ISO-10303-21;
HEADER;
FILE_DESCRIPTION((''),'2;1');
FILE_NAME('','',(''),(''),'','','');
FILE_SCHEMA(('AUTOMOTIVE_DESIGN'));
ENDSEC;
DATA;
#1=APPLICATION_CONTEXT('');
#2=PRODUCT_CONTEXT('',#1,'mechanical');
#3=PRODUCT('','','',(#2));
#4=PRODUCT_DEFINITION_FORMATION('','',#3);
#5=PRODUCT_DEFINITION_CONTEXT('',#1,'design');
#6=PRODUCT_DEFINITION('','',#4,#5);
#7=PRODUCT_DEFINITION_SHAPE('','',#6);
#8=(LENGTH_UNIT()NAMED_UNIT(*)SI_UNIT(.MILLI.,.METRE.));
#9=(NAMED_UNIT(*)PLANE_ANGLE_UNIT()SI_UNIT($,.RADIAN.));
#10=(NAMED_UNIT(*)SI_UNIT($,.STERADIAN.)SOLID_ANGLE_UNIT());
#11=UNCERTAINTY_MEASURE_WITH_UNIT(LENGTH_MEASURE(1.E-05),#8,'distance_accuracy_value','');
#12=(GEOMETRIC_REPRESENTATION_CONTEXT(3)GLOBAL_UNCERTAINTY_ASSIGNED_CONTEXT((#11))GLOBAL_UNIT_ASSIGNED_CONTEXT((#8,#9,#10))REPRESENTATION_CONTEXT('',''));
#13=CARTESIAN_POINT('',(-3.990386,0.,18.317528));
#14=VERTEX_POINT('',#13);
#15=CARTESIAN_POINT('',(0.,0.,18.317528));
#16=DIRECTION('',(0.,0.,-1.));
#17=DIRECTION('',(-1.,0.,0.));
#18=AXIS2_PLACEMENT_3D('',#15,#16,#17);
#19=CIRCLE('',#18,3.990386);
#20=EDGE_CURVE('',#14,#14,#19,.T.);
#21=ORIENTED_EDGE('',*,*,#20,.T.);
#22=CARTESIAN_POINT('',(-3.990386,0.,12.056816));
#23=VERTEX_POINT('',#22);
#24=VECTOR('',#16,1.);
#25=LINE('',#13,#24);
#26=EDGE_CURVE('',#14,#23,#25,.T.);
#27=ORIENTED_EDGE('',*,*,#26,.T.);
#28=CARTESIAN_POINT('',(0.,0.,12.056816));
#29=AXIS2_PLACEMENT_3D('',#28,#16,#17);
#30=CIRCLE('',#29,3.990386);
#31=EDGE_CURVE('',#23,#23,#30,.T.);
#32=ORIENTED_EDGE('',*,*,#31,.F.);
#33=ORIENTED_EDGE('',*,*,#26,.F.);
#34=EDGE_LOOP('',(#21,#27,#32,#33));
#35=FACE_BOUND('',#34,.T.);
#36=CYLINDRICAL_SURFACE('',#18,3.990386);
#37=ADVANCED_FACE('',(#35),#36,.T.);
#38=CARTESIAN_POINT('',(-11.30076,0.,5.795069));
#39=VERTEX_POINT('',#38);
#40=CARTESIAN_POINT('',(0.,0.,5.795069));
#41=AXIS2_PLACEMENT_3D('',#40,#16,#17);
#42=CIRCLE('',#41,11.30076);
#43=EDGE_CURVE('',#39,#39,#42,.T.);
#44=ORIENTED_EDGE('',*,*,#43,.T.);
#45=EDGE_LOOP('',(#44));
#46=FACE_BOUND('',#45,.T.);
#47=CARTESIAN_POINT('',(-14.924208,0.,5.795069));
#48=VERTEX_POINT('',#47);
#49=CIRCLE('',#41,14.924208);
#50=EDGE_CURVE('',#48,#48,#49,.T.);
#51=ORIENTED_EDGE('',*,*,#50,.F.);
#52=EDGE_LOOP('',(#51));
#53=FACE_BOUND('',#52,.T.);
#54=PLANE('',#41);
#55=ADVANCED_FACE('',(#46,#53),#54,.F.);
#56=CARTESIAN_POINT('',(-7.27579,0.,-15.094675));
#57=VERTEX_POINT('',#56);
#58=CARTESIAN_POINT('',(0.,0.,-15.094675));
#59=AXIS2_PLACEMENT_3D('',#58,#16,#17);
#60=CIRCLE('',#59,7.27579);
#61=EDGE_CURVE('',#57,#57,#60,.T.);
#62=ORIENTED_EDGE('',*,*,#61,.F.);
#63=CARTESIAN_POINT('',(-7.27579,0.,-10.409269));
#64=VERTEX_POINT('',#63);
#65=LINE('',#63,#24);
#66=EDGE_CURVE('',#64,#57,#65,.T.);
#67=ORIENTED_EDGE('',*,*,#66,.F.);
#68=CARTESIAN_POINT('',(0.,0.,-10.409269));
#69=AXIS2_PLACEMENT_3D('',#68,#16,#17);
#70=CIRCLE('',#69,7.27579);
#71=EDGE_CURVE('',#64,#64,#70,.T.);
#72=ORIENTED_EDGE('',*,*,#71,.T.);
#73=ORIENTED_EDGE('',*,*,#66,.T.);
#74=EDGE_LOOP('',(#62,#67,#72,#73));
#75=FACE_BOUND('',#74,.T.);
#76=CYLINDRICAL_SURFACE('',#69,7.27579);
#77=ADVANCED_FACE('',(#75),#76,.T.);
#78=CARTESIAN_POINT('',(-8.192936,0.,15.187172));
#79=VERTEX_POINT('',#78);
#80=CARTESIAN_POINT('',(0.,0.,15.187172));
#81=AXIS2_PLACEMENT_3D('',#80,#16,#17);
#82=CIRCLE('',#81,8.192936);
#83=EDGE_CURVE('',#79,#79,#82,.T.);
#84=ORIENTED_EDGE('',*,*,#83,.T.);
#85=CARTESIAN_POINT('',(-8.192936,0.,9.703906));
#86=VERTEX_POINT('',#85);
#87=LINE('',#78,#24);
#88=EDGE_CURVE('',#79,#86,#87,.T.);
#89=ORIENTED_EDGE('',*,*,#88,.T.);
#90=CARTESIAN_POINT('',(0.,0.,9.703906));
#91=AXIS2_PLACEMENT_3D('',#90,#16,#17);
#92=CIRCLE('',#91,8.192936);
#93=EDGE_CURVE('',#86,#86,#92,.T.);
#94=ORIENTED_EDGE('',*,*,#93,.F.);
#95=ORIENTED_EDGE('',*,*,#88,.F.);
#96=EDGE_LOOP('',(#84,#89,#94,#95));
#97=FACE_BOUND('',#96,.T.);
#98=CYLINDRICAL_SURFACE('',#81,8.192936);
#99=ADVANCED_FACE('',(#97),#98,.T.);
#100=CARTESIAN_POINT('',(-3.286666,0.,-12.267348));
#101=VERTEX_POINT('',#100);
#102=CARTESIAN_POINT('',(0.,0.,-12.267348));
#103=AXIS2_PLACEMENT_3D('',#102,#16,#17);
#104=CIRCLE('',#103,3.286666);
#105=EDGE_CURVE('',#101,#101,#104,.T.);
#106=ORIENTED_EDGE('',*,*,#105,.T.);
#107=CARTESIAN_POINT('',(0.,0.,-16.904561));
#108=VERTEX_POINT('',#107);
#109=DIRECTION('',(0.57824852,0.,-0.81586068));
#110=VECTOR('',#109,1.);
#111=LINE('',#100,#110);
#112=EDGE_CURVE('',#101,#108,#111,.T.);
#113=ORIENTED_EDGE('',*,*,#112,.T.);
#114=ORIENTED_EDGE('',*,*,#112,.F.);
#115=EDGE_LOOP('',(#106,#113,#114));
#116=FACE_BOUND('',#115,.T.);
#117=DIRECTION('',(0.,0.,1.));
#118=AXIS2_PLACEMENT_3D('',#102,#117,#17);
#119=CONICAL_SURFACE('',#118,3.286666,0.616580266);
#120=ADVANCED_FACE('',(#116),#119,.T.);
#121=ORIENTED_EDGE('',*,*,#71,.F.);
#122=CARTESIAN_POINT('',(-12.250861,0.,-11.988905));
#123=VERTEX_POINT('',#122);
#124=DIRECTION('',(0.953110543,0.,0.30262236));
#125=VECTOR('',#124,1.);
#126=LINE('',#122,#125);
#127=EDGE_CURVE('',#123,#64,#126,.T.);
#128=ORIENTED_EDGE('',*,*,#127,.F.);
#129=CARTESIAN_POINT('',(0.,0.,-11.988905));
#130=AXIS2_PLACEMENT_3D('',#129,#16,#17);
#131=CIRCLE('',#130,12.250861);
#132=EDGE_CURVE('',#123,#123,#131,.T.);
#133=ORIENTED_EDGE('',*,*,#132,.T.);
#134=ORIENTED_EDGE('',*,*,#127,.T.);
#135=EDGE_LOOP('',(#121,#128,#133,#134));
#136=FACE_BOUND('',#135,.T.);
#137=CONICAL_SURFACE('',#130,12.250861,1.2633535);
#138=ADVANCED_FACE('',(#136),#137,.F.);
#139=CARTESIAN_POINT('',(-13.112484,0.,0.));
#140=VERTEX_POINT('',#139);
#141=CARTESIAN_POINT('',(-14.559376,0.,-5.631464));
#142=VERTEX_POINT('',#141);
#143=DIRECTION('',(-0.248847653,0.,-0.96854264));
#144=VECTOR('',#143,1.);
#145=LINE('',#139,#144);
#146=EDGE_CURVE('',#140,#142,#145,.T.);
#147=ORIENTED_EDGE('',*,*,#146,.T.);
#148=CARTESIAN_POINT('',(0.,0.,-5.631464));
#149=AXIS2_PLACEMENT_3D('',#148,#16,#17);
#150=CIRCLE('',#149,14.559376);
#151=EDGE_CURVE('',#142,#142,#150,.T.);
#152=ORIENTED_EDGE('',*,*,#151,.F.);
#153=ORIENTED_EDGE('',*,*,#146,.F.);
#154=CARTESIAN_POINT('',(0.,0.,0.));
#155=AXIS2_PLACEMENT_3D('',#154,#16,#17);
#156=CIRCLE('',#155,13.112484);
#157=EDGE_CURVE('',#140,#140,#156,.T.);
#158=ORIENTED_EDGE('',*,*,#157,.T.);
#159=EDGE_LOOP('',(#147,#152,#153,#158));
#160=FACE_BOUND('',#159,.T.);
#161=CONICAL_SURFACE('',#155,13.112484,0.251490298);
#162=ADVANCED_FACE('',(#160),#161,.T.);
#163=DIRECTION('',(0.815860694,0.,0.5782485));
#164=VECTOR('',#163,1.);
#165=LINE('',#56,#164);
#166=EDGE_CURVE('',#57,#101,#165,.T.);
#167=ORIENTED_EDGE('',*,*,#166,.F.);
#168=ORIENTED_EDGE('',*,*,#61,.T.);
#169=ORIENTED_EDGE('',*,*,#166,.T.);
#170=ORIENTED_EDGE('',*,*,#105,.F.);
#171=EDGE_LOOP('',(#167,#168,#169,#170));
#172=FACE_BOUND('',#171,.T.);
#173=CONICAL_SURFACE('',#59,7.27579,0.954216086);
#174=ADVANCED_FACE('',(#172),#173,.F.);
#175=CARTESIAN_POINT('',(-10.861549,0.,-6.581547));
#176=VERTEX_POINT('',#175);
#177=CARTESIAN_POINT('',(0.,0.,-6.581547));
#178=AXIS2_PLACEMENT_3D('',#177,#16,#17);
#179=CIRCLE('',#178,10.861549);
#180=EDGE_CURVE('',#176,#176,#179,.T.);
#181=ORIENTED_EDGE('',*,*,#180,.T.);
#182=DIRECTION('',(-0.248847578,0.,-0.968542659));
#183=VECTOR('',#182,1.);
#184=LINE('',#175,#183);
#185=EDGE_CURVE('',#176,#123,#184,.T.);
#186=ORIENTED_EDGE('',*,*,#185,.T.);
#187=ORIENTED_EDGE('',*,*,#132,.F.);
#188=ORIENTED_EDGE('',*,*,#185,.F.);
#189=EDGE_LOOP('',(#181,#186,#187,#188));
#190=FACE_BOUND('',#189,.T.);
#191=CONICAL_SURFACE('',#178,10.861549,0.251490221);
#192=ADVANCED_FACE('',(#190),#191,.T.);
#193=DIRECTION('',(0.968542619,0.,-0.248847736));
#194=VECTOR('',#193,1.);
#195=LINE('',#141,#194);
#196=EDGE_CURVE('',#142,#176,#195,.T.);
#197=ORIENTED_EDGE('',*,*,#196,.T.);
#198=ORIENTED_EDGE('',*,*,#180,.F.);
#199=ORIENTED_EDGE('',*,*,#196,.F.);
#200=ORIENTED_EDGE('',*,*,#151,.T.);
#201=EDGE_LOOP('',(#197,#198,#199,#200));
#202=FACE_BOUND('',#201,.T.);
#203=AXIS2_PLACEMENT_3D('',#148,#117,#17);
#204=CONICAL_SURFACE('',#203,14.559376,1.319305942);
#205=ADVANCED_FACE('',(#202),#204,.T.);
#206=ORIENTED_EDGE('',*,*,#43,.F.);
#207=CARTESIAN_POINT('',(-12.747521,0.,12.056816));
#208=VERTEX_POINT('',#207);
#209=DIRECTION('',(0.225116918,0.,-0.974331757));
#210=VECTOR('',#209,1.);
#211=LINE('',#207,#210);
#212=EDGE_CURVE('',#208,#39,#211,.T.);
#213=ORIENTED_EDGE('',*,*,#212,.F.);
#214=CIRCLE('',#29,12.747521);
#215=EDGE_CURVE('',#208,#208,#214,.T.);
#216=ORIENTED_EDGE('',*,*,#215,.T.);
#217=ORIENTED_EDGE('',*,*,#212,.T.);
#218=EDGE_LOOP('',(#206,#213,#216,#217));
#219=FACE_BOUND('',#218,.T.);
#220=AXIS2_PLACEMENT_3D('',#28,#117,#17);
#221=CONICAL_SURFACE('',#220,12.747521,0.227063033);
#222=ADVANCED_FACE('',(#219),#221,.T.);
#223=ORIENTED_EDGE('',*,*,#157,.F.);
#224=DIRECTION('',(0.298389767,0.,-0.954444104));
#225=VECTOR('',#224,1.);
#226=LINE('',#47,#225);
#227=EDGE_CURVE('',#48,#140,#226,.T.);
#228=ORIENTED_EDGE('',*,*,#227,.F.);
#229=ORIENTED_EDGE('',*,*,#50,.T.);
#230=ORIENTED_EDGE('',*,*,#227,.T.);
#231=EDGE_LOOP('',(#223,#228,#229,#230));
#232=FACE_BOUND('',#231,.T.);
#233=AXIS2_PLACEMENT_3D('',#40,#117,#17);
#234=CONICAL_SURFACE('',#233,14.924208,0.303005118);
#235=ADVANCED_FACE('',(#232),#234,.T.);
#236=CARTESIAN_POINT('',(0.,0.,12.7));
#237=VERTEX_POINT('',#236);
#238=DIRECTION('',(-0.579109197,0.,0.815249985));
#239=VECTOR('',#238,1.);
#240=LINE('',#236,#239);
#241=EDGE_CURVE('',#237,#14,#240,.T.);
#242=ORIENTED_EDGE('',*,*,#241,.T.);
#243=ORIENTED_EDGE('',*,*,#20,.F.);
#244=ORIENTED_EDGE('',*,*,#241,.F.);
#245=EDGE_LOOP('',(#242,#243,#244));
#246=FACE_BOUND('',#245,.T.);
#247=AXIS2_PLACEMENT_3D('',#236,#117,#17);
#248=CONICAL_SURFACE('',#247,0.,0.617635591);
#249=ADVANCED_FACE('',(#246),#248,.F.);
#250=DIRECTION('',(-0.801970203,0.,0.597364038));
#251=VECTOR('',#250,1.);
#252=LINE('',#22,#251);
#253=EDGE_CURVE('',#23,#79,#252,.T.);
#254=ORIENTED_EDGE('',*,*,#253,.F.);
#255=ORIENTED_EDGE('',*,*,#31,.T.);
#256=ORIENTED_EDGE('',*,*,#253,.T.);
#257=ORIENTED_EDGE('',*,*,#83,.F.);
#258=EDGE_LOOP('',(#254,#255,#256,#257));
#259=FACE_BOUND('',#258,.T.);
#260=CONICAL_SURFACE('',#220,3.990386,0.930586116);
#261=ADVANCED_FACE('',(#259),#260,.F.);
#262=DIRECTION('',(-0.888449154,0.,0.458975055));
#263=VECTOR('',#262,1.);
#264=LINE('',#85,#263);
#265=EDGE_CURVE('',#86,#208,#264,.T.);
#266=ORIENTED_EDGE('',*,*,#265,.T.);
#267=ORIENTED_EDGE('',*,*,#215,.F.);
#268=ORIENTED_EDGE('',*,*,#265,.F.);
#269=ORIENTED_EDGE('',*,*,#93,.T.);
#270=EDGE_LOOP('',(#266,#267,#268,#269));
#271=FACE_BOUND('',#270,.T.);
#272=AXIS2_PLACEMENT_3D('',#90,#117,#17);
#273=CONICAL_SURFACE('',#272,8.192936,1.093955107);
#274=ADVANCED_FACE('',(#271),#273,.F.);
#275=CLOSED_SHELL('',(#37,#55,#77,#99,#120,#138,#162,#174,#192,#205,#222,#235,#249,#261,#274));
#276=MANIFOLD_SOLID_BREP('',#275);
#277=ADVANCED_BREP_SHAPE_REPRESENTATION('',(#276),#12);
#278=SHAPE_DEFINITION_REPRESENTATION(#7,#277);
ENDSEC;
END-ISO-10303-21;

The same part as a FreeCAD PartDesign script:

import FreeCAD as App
import Part
import Sketcher


def add_polygon(sketch, points):
    """Adds a closed chain of lines whose ends are joined by coincident constraints."""
    first, n = sketch.GeometryCount, len(points)
    for a, b in zip(points, points[1:] + points[:1]):
        sketch.addGeometry(Part.LineSegment(App.Vector(*a, 0), App.Vector(*b, 0)), False)
    for i in range(n):
        sketch.addConstraint(Sketcher.Constraint("Coincident", first + i, 2, first + (i + 1) % n, 1))

doc = App.newDocument("Part")
body = doc.addObject("PartDesign::Body", "Body")

# Sketch on XZ plane
sketch1 = body.newObject("Sketcher::SketchObject", "Sketch")
sketch1.AttachmentSupport = (doc.getObject("XZ_Plane"), [""])
sketch1.MapMode = "FlatFace"
add_polygon(sketch1, [(0, -16.9), (0, 12.7), (-4, 18.3), (-4, 12.1), (-8.2, 15.2), (-8.2, 9.7), (-12.7, 12.1), (-11.3, 5.8), (-14.9, 5.8), (-13.1, 0), (-14.6, -5.6), (-10.9, -6.6), (-12.3, -12), (-7.3, -10.4), (-7.3, -15.1), (-3.3, -12.3)])  # lines 0-15
sketch1.addConstraint(Sketcher.Constraint("Vertical", 0))
sketch1.addConstraint(Sketcher.Constraint("Vertical", 2))
sketch1.addConstraint(Sketcher.Constraint("Vertical", 4))
sketch1.addConstraint(Sketcher.Constraint("Horizontal", 7))
sketch1.addConstraint(Sketcher.Constraint("Vertical", 13))
sketch1.addConstraint(Sketcher.Constraint("PointOnObject", 0, 2, -2))
sketch1.addConstraint(Sketcher.Constraint("PointOnObject", 8, 2, -1))
sketch1.addConstraint(Sketcher.Constraint("Perpendicular", 9, 10))
sketch1.addConstraint(Sketcher.Constraint("Perpendicular", 10, 11))
sketch1.addConstraint(Sketcher.Constraint("Perpendicular", 14, 15))
sketch1.addConstraint(Sketcher.Constraint("Horizontal", 2, 2, 5, 2))
sketch1.addConstraint(Sketcher.Constraint("DistanceY", -1, 1, 0, 2, 12.7))
sketch1.addConstraint(Sketcher.Constraint("DistanceY", 0, 1, 0, 2, 29.604561))
sketch1.addConstraint(Sketcher.Constraint("DistanceY", 2, 2, 2, 1, 6.260712))
sketch1.addConstraint(Sketcher.Constraint("DistanceX", 8, 2, 2, 2, 9.122098))
sketch1.addConstraint(Sketcher.Constraint("DistanceX", 11, 2, 6, 2, 0.950101))
sketch1.addConstraint(Sketcher.Constraint("DistanceY", 14, 2, 10, 2, 5.685801))
sketch1.addConstraint(Sketcher.Constraint("Distance", 1, 6.890559))
sketch1.addConstraint(Sketcher.Constraint("Distance", 3, 5.240282))
sketch1.addConstraint(Sketcher.Constraint("Distance", 6, 6.426709))
sketch1.addConstraint(Sketcher.Constraint("Distance", 8, 6.071669))
sketch1.addConstraint(Sketcher.Constraint("Distance", 9, 5.814369))
sketch1.addConstraint(Sketcher.Constraint("Distance", 10, 3.817929))
sketch1.addConstraint(Sketcher.Constraint("Distance", 15, 5.68383))
sketch1.addConstraint(Sketcher.Constraint("DistanceX", 7, 2, 7, 1, 3.623448))
sketch1.addConstraint(Sketcher.Constraint("DistanceY", 4, 2, 4, 1, 5.483266))
sketch1.addConstraint(Sketcher.Constraint("DistanceY", 13, 2, 13, 1, 4.685406))
sketch1.addConstraint(Sketcher.Constraint("DistanceX", 5, 2, -1, 1, 12.747521))
sketch1.addConstraint(Sketcher.Constraint("DistanceX", 6, 2, -1, 1, 11.30076))
sketch1.addConstraint(Sketcher.Constraint("DistanceX", 10, 2, -1, 1, 10.861549))
sketch1.addConstraint(Sketcher.Constraint("DistanceX", 12, 2, -1, 1, 7.27579))
sketch1.addConstraint(Sketcher.Constraint("DistanceX", 3, 2, 1, 2, 4.20255))
revolution = body.newObject("PartDesign::Revolution", "Revolution")
revolution.Profile = sketch1
revolution.ReferenceAxis = (sketch1, ["V_Axis"])
revolution.Angle = 360

doc.recompute()
